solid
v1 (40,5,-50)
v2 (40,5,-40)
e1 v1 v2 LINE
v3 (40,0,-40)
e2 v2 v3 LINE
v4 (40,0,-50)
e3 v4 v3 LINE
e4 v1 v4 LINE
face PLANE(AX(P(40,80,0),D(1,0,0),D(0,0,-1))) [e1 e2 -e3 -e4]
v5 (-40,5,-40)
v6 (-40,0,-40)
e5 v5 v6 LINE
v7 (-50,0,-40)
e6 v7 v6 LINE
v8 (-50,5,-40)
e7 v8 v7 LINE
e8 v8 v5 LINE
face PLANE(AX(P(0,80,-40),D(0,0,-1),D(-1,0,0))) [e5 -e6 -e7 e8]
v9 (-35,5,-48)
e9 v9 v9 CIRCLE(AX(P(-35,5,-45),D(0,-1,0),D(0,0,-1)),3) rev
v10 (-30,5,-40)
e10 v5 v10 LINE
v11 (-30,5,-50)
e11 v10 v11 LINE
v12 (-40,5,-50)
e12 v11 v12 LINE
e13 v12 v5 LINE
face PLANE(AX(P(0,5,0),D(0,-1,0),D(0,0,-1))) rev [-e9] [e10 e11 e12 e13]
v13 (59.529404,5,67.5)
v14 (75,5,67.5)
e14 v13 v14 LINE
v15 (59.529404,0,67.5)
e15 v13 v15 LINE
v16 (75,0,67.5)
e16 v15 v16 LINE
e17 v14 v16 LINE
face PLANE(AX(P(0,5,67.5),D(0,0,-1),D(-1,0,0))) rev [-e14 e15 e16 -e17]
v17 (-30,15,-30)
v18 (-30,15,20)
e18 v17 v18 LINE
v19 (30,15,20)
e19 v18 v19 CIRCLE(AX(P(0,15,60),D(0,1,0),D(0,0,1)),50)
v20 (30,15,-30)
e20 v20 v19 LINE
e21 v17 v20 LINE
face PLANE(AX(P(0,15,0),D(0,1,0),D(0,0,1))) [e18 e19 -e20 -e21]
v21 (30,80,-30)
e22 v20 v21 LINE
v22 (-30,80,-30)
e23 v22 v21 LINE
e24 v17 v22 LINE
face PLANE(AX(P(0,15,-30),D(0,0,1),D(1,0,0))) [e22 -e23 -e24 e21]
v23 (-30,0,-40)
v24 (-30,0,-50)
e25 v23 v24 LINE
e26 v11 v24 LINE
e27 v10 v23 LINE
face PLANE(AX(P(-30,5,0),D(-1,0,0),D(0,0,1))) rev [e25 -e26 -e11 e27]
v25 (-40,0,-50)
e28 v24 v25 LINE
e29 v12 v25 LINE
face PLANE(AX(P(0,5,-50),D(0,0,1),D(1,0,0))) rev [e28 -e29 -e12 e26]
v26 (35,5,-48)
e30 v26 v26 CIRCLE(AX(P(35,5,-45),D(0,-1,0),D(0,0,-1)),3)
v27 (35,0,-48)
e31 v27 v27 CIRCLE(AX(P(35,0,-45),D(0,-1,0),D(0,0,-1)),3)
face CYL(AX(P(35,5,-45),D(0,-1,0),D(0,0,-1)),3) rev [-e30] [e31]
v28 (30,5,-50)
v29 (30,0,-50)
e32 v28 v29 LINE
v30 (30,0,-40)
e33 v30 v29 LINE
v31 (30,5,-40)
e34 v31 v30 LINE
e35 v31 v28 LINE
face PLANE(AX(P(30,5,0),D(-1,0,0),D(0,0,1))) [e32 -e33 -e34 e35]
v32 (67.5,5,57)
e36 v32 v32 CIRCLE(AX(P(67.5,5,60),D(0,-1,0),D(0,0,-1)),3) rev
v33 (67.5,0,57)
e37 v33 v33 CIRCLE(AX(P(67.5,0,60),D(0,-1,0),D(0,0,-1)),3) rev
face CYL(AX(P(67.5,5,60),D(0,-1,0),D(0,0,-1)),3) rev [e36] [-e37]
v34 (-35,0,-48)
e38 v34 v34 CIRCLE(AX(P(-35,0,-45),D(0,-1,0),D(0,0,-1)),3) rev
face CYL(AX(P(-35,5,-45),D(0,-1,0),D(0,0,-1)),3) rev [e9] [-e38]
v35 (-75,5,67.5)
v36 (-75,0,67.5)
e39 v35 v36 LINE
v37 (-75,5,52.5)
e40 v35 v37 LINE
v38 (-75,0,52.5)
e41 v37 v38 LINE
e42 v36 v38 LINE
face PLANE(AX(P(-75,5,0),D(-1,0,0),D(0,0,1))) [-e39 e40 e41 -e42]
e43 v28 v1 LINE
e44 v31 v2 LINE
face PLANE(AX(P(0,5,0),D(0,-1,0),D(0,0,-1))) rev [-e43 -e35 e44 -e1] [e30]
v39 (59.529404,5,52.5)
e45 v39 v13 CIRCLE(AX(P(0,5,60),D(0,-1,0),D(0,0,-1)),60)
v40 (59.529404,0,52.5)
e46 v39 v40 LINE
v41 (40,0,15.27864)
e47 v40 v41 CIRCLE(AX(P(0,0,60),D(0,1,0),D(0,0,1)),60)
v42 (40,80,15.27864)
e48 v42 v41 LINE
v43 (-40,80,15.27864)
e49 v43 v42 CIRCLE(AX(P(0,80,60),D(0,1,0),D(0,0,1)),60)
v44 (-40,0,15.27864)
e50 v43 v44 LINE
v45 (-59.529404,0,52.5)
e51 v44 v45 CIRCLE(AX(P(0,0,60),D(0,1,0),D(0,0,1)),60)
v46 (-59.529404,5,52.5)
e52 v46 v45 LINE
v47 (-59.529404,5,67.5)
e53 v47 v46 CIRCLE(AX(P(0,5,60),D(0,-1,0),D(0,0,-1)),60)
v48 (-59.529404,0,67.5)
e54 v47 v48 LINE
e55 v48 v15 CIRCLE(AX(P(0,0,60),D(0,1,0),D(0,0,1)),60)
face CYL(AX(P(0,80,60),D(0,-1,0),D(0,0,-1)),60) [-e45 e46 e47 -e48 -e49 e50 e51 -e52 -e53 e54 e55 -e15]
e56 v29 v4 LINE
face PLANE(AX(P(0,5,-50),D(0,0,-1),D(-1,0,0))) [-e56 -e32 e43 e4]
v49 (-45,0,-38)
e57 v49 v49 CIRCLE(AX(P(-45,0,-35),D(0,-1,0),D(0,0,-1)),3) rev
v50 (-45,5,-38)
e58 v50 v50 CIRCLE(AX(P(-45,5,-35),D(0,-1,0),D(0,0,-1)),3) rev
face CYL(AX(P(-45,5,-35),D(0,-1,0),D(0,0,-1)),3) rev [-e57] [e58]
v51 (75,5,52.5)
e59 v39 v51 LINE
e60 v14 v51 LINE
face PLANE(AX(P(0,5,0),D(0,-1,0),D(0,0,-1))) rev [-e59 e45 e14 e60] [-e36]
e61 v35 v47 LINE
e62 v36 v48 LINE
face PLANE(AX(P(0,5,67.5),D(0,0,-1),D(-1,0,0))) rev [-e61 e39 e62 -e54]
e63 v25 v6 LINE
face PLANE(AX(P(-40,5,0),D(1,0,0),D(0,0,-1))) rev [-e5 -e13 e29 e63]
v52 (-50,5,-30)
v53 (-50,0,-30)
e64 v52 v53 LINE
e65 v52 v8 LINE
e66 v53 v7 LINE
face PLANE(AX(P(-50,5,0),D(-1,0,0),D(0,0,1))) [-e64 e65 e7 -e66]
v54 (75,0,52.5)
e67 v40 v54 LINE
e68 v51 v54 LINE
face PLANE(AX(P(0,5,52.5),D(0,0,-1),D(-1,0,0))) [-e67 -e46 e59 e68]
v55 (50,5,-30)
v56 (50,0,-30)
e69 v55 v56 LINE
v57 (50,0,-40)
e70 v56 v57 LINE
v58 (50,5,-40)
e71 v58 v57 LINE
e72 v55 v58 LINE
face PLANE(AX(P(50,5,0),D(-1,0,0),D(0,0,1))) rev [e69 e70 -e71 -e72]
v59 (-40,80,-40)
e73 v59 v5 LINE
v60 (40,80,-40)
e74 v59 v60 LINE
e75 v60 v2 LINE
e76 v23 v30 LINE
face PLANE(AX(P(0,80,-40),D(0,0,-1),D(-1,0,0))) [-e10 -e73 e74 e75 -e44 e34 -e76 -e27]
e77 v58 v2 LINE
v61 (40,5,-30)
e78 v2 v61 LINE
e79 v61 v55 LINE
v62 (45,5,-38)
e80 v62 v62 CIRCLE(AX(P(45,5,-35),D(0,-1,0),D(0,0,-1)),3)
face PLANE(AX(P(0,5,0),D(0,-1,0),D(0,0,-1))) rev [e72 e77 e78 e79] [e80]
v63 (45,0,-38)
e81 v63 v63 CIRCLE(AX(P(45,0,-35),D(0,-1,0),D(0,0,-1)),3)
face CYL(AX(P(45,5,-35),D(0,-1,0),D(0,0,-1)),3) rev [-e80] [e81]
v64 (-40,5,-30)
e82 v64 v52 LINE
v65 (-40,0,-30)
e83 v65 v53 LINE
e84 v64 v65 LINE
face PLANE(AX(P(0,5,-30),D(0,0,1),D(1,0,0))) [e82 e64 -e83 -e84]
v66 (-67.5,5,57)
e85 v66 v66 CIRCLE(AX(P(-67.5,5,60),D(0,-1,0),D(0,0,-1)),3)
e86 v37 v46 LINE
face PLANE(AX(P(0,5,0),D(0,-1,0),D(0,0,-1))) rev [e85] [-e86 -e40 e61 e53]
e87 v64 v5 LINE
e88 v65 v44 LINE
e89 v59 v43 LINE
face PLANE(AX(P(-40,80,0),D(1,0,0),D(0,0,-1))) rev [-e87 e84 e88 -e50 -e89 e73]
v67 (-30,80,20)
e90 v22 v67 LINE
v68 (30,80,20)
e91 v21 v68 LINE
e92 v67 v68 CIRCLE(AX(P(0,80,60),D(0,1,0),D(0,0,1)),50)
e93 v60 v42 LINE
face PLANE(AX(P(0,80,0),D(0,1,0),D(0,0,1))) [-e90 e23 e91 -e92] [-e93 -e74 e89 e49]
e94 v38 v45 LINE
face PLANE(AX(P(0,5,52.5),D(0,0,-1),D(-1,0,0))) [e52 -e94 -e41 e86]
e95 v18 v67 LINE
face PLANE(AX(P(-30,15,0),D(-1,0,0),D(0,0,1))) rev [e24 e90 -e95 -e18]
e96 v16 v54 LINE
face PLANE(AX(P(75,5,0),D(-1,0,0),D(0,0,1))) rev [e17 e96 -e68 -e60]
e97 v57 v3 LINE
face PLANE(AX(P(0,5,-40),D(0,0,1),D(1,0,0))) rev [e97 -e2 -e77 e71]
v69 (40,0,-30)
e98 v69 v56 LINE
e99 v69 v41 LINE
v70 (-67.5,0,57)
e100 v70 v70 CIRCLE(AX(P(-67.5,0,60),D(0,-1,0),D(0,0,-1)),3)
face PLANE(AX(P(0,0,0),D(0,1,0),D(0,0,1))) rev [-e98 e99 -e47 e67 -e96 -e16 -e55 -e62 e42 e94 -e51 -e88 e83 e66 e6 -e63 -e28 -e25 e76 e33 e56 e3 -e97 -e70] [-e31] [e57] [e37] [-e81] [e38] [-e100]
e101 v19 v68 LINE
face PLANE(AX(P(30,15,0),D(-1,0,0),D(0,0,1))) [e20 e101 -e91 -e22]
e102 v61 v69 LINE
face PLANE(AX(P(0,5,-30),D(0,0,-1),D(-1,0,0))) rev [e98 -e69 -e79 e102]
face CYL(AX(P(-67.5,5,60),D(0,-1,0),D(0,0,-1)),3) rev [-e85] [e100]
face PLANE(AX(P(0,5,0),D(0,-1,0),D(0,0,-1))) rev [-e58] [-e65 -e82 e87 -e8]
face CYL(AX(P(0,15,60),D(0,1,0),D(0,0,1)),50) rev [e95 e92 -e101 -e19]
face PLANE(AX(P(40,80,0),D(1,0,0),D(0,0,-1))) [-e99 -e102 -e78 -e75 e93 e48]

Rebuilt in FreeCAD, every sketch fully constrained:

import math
import FreeCAD as App
import Part
import Sketcher
from FreeCAD import Vector

doc = App.newDocument("Part")
body = doc.addObject("PartDesign::Body", "Body")

# Sketch on XZ plane
sketch1 = doc.addObject("Sketcher::SketchObject", "Sketch")
body.addObject(sketch1)
sketch1.AttachmentSupport = (doc.XZ_Plane, [""])
sketch1.MapMode = "FlatFace"
sketch1.addGeometry(Part.ArcOfCircle(Part.Circle(Vector(0, 60, 0), Vector(0, 0, 1), 60), math.radians(0), math.radians(228)), False)
sketch1.addGeometry(Part.ArcOfCircle(Part.Circle(Vector(0, 60, 0), Vector(0, 0, 1), 60), math.radians(-48), math.radians(0)), False)
sketch1.addGeometry(Part.LineSegment(Vector(40, 15, 0), Vector(40, -40, 0)), False)
sketch1.addGeometry(Part.LineSegment(Vector(40, -40, 0), Vector(-40, -40, 0)), False)
sketch1.addGeometry(Part.LineSegment(Vector(-40, -40, 0), Vector(-40, 15, 0)), False)
sketch1.addConstraint(Sketcher.Constraint("Tangent", 0, 1, 1, 2))
sketch1.addConstraint(Sketcher.Constraint("Coincident", 1, 1, 2, 1))
sketch1.addConstraint(Sketcher.Constraint("Coincident", 2, 2, 3, 1))
sketch1.addConstraint(Sketcher.Constraint("Coincident", 3, 2, 4, 1))
sketch1.addConstraint(Sketcher.Constraint("Coincident", 4, 2, 0, 2))
sketch1.addConstraint(Sketcher.Constraint("Vertical", 2))
sketch1.addConstraint(Sketcher.Constraint("Horizontal", 3))
sketch1.addConstraint(Sketcher.Constraint("Vertical", 4))
sketch1.addConstraint(Sketcher.Constraint("Equal", 0, 1))
sketch1.addConstraint(Sketcher.Constraint("Symmetric", 1, 1, 4, 2, -2))
sketch1.addConstraint(Sketcher.Constraint("Horizontal", 1, 3, 0, 1))
sketch1.addConstraint(Sketcher.Constraint("Radius", 0, 60.0))
sketch1.addConstraint(Sketcher.Constraint("DistanceX", 3, 2, 3, 1, 80.0))
sketch1.addConstraint(Sketcher.Constraint("DistanceY", -1, 1, 0, 3, 60.0))
sketch1.addConstraint(Sketcher.Constraint("DistanceY", 2, 2, -1, 1, 40.0))
pad1 = doc.addObject("PartDesign::Pad", "Pad")
body.addObject(pad1)
pad1.Profile = sketch1
pad1.Length = 80
pad1.Reversed = True

# Sketch on XZ plane
sketch2 = doc.addObject("Sketcher::SketchObject", "Sketch001")
body.addObject(sketch2)
sketch2.AttachmentSupport = (doc.XZ_Plane, [""])
sketch2.MapMode = "FlatFace"
sketch2.AttachmentOffset = App.Placement(Vector(0, 0, -80), App.Rotation())
sketch2.addGeometry(Part.LineSegment(Vector(-30, -30, 0), Vector(-30, 20, 0)), False)
sketch2.addGeometry(Part.ArcOfCircle(Part.Circle(Vector(0, 60, 0), Vector(0, 0, 1), 50), math.radians(-53), math.radians(233)), False)
sketch2.addGeometry(Part.LineSegment(Vector(30, 20, 0), Vector(30, -30, 0)), False)
sketch2.addGeometry(Part.LineSegment(Vector(30, -30, 0), Vector(-30, -30, 0)), False)
sketch2.addConstraint(Sketcher.Constraint("Coincident", 0, 2, 1, 2))
sketch2.addConstraint(Sketcher.Constraint("Coincident", 1, 1, 2, 1))
sketch2.addConstraint(Sketcher.Constraint("Coincident", 2, 2, 3, 1))
sketch2.addConstraint(Sketcher.Constraint("Coincident", 3, 2, 0, 1))
sketch2.addConstraint(Sketcher.Constraint("Vertical", 0))
sketch2.addConstraint(Sketcher.Constraint("Vertical", 2))
sketch2.addConstraint(Sketcher.Constraint("Horizontal", 3))
sketch2.addConstraint(Sketcher.Constraint("Symmetric", 0, 2, 1, 1, -2))
sketch2.addConstraint(Sketcher.Constraint("Radius", 1, 50.0))
sketch2.addConstraint(Sketcher.Constraint("DistanceX", 3, 2, 3, 1, 60.0))
sketch2.addConstraint(Sketcher.Constraint("DistanceY", 0, 1, 0, 2, 50.0))
sketch2.addConstraint(Sketcher.Constraint("DistanceY", -1, 1, 1, 3, 60.0))
pocket1 = doc.addObject("PartDesign::Pocket", "Pocket")
body.addObject(pocket1)
pocket1.Profile = sketch2
pocket1.Length = 65
pocket1.Reversed = True

# Sketch on XZ plane
sketch3 = doc.addObject("Sketcher::SketchObject", "Sketch002")
body.addObject(sketch3)
sketch3.AttachmentSupport = (doc.XZ_Plane, [""])
sketch3.MapMode = "FlatFace"
sketch3.addGeometry(Part.LineSegment(Vector(-75, 52.5, 0), Vector(-59.5, 52.5, 0)), False)
sketch3.addGeometry(Part.ArcOfCircle(Part.Circle(Vector(0, 60, 0), Vector(0, 0, 1), 60), math.radians(172.82), math.radians(187.18)), False)
sketch3.addGeometry(Part.LineSegment(Vector(-59.5, 67.5, 0), Vector(-75, 67.5, 0)), False)
sketch3.addGeometry(Part.LineSegment(Vector(-75, 67.5, 0), Vector(-75, 52.5, 0)), False)
sketch3.addGeometry(Part.Circle(Vector(-67.5, 60, 0), Vector(0, 0, 1), 3), False)
sketch3.addGeometry(Part.ArcOfCircle(Part.Circle(Vector(0, 60, 0), Vector(0, 0, 1), 60), math.radians(-7.18), math.radians(7.18)), False)
sketch3.addGeometry(Part.LineSegment(Vector(59.5, 52.5, 0), Vector(75, 52.5, 0)), False)
sketch3.addGeometry(Part.LineSegment(Vector(75, 52.5, 0), Vector(75, 67.5, 0)), False)
sketch3.addGeometry(Part.LineSegment(Vector(75, 67.5, 0), Vector(59.5, 67.5, 0)), False)
sketch3.addGeometry(Part.Circle(Vector(67.5, 60, 0), Vector(0, 0, 1), 3), False)
sketch3.addGeometry(Part.LineSegment(Vector(-50, -30, 0), Vector(-50, -40, 0)), False)
sketch3.addGeometry(Part.LineSegment(Vector(-50, -40, 0), Vector(-40, -40, 0)), False)
sketch3.addGeometry(Part.LineSegment(Vector(-40, -40, 0), Vector(-40, -30, 0)), False)
sketch3.addGeometry(Part.LineSegment(Vector(-40, -30, 0), Vector(-50, -30, 0)), False)
sketch3.addGeometry(Part.Circle(Vector(-45, -35, 0), Vector(0, 0, 1), 3), False)
sketch3.addGeometry(Part.LineSegment(Vector(-40, -40, 0), Vector(-40, -50, 0)), False)
sketch3.addGeometry(Part.LineSegment(Vector(-40, -50, 0), Vector(-30, -50, 0)), False)
sketch3.addGeometry(Part.LineSegment(Vector(-30, -50, 0), Vector(-30, -40, 0)), False)
sketch3.addGeometry(Part.LineSegment(Vector(-30, -40, 0), Vector(-40, -40, 0)), False)
sketch3.addGeometry(Part.Circle(Vector(-35, -45, 0), Vector(0, 0, 1), 3), False)
sketch3.addGeometry(Part.LineSegment(Vector(30, -40, 0), Vector(30, -50, 0)), False)
sketch3.addGeometry(Part.LineSegment(Vector(30, -50, 0), Vector(40, -50, 0)), False)
sketch3.addGeometry(Part.LineSegment(Vector(40, -50, 0), Vector(40, -40, 0)), False)
sketch3.addGeometry(Part.LineSegment(Vector(40, -40, 0), Vector(30, -40, 0)), False)
sketch3.addGeometry(Part.Circle(Vector(35, -45, 0), Vector(0, 0, 1), 3), False)
sketch3.addGeometry(Part.LineSegment(Vector(40, -30, 0), Vector(40, -40, 0)), False)
sketch3.addGeometry(Part.LineSegment(Vector(40, -40, 0), Vector(50, -40, 0)), False)
sketch3.addGeometry(Part.LineSegment(Vector(50, -40, 0), Vector(50, -30, 0)), False)
sketch3.addGeometry(Part.LineSegment(Vector(50, -30, 0), Vector(40, -30, 0)), False)
sketch3.addGeometry(Part.Circle(Vector(45, -35, 0), Vector(0, 0, 1), 3), False)
sketch3.addConstraint(Sketcher.Constraint("Coincident", 0, 2, 1, 2))
sketch3.addConstraint(Sketcher.Constraint("Coincident", 1, 1, 2, 1))
sketch3.addConstraint(Sketcher.Constraint("Coincident", 2, 2, 3, 1))
sketch3.addConstraint(Sketcher.Constraint("Coincident", 3, 2, 0, 1))
sketch3.addConstraint(Sketcher.Constraint("Coincident", 5, 1, 6, 1))
sketch3.addConstraint(Sketcher.Constraint("Coincident", 6, 2, 7, 1))
sketch3.addConstraint(Sketcher.Constraint("Coincident", 7, 2, 8, 1))
sketch3.addConstraint(Sketcher.Constraint("Coincident", 8, 2, 5, 2))
sketch3.addConstraint(Sketcher.Constraint("Coincident", 10, 2, 11, 1))
sketch3.addConstraint(Sketcher.Constraint("Coincident", 11, 2, 12, 1))
sketch3.addConstraint(Sketcher.Constraint("Coincident", 12, 2, 13, 1))
sketch3.addConstraint(Sketcher.Constraint("Coincident", 13, 2, 10, 1))
sketch3.addConstraint(Sketcher.Constraint("Coincident", 15, 2, 16, 1))
sketch3.addConstraint(Sketcher.Constraint("Coincident", 16, 2, 17, 1))
sketch3.addConstraint(Sketcher.Constraint("Coincident", 17, 2, 18, 1))
sketch3.addConstraint(Sketcher.Constraint("Coincident", 18, 2, 15, 1))
sketch3.addConstraint(Sketcher.Constraint("Coincident", 20, 2, 21, 1))
sketch3.addConstraint(Sketcher.Constraint("Coincident", 21, 2, 22, 1))
sketch3.addConstraint(Sketcher.Constraint("Coincident", 22, 2, 23, 1))
sketch3.addConstraint(Sketcher.Constraint("Coincident", 23, 2, 20, 1))
sketch3.addConstraint(Sketcher.Constraint("Coincident", 25, 2, 26, 1))
sketch3.addConstraint(Sketcher.Constraint("Coincident", 26, 2, 27, 1))
sketch3.addConstraint(Sketcher.Constraint("Coincident", 27, 2, 28, 1))
sketch3.addConstraint(Sketcher.Constraint("Coincident", 28, 2, 25, 1))
sketch3.addConstraint(Sketcher.Constraint("Horizontal", 0))
sketch3.addConstraint(Sketcher.Constraint("Horizontal", 2))
sketch3.addConstraint(Sketcher.Constraint("Vertical", 3))
sketch3.addConstraint(Sketcher.Constraint("Horizontal", 6))
sketch3.addConstraint(Sketcher.Constraint("Vertical", 7))
sketch3.addConstraint(Sketcher.Constraint("Horizontal", 8))
sketch3.addConstraint(Sketcher.Constraint("Vertical", 10))
sketch3.addConstraint(Sketcher.Constraint("Horizontal", 11))
sketch3.addConstraint(Sketcher.Constraint("Vertical", 12))
sketch3.addConstraint(Sketcher.Constraint("Horizontal", 13))
sketch3.addConstraint(Sketcher.Constraint("Vertical", 15))
sketch3.addConstraint(Sketcher.Constraint("Horizontal", 16))
sketch3.addConstraint(Sketcher.Constraint("Vertical", 17))
sketch3.addConstraint(Sketcher.Constraint("Horizontal", 18))
sketch3.addConstraint(Sketcher.Constraint("Vertical", 20))
sketch3.addConstraint(Sketcher.Constraint("Horizontal", 21))
sketch3.addConstraint(Sketcher.Constraint("Vertical", 22))
sketch3.addConstraint(Sketcher.Constraint("Horizontal", 23))
sketch3.addConstraint(Sketcher.Constraint("Vertical", 25))
sketch3.addConstraint(Sketcher.Constraint("Horizontal", 26))
sketch3.addConstraint(Sketcher.Constraint("Vertical", 27))
sketch3.addConstraint(Sketcher.Constraint("Horizontal", 28))
sketch3.addConstraint(Sketcher.Constraint("Coincident", 5, 3, 1, 3))
sketch3.addConstraint(Sketcher.Constraint("Coincident", 18, 2, 11, 2))
sketch3.addConstraint(Sketcher.Constraint("Coincident", 25, 2, 22, 2))
sketch3.addConstraint(Sketcher.Constraint("Equal", 1, 5))
sketch3.addConstraint(Sketcher.Constraint("Equal", 4, 9))
sketch3.addConstraint(Sketcher.Constraint("Equal", 9, 14))
sketch3.addConstraint(Sketcher.Constraint("Equal", 14, 19))
sketch3.addConstraint(Sketcher.Constraint("Equal", 19, 24))
sketch3.addConstraint(Sketcher.Constraint("Equal", 24, 29))
sketch3.addConstraint(Sketcher.Constraint("Symmetric", 4, 3, 9, 3, -2))
sketch3.addConstraint(Sketcher.Constraint("Symmetric", 19, 3, 24, 3, -2))
sketch3.addConstraint(Sketcher.Constraint("Symmetric", 14, 3, 29, 3, -2))
sketch3.addConstraint(Sketcher.Constraint("Symmetric", 0, 2, 5, 1, -2))
sketch3.addConstraint(Sketcher.Constraint("Symmetric", 2, 2, 7, 2, -2))
sketch3.addConstraint(Sketcher.Constraint("Symmetric", 16, 2, 20, 2, -2))
sketch3.addConstraint(Sketcher.Constraint("Symmetric", 11, 2, 22, 2, -2))
sketch3.addConstraint(Sketcher.Constraint("Symmetric", 13, 2, 27, 2, -2))
sketch3.addConstraint(Sketcher.Constraint("Horizontal", 1, 3, 4, 3))
sketch3.addConstraint(Sketcher.Constraint("Vertical", 0, 2, 1, 1))
sketch3.addConstraint(Sketcher.Constraint("Equal", 13, 16))
sketch3.addConstraint(Sketcher.Constraint("Equal", 28, 10))
sketch3.addConstraint(Sketcher.Constraint("Equal", 12, 15))
sketch3.addConstraint(Sketcher.Constraint("Diameter", 4, 6.0))
sketch3.addConstraint(Sketcher.Constraint("Radius", 1, 60.0))
sketch3.addConstraint(Sketcher.Constraint("DistanceX", 11, 1, 11, 2, 10.0))
sketch3.addConstraint(Sketcher.Constraint("DistanceY", 3, 2, 3, 1, 15.0))
sketch3.addConstraint(Sketcher.Constraint("DistanceY", -1, 1, 1, 3, 60.0))
sketch3.addConstraint(Sketcher.Constraint("DistanceX", 14, 3, -1, 1, 45.0))
sketch3.addConstraint(Sketcher.Constraint("DistanceY", 14, 3, -1, 1, 35.0))
sketch3.addConstraint(Sketcher.Constraint("DistanceX", 19, 3, -1, 1, 35.0))
sketch3.addConstraint(Sketcher.Constraint("DistanceY", 19, 3, -1, 1, 45.0))
sketch3.addConstraint(Sketcher.Constraint("DistanceX", 2, 2, -1, 1, 75.0))
sketch3.addConstraint(Sketcher.Constraint("DistanceX", 10, 2, -1, 1, 50.0))
sketch3.addConstraint(Sketcher.Constraint("DistanceY", 10, 2, -1, 1, 40.0))
sketch3.addConstraint(Sketcher.Constraint("DistanceX", 4, 3, 9, 3, 135.0))
pad2 = doc.addObject("PartDesign::Pad", "Pad001")
body.addObject(pad2)
pad2.Profile = sketch3
pad2.Length = 5
pad2.Reversed = True

doc.recompute()
